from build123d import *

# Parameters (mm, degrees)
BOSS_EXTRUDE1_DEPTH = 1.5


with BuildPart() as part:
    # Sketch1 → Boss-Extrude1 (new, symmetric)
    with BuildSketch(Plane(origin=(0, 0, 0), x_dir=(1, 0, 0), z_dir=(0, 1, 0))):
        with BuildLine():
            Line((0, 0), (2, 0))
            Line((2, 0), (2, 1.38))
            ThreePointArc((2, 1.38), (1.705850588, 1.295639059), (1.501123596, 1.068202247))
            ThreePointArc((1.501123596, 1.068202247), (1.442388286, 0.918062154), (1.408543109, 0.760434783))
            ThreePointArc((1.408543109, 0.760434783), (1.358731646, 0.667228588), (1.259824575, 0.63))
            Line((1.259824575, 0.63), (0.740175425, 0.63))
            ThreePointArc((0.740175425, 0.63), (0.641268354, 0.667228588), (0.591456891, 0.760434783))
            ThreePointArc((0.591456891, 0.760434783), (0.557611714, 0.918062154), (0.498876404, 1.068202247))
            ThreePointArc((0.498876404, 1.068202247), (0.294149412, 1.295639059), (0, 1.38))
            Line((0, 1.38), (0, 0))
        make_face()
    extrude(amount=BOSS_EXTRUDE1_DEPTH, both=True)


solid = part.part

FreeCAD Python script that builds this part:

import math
import FreeCAD as App
import Part
import Sketcher
from FreeCAD import Vector
Q = App.Units.Quantity

doc = App.newDocument("Part")
params = doc.addObject("Spreadsheet::Sheet", "Params")
for row, (alias, value) in enumerate([
    ("sketch1_radius", "1 mm"),
    ("sketch1_width", "2 mm"),
    ("sketch1_radius2", "0.15 mm"),
    ("sketch1_height", "1.38 mm"),
    ("pad1_length", "3 mm"),
], start=1):
    params.set(f"A{row}", alias)
    params.set(f"B{row}", "=" + value)
    params.setAlias(f"B{row}", alias)

body = doc.addObject("PartDesign::Body", "Body")

# Sketch on XZ plane
sketch1 = doc.addObject("Sketcher::SketchObject", "Sketch")
body.addObject(sketch1)
sketch1.AttachmentSupport = (doc.XZ_Plane, [""])
sketch1.MapMode = "FlatFace"
sketch1.addGeometry(Part.LineSegment(Vector(0, 0, 0), Vector(2, 0, 0)), False)
sketch1.addGeometry(Part.LineSegment(Vector(2, 0, 0), Vector(2, -1.38, 0)), False)
sketch1.addGeometry(Part.ArcOfCircle(Part.Circle(Vector(2, -0.83, 0), Vector(0, 0, 1), 0.55), math.radians(-154), math.radians(-90)), False)
sketch1.addGeometry(Part.ArcOfCircle(Part.Circle(Vector(2.4, -0.63, 0), Vector(0, 0, 1), 1), math.radians(-172.51), math.radians(-154.01)), False)
sketch1.addGeometry(Part.ArcOfCircle(Part.Circle(Vector(1.26, -0.78, 0), Vector(0, 0, 1), 0.15), math.radians(7), math.radians(90)), False)
sketch1.addGeometry(Part.LineSegment(Vector(1.26, -0.63, 0), Vector(0.74, -0.63, 0)), False)
sketch1.addGeometry(Part.ArcOfCircle(Part.Circle(Vector(0.74, -0.78, 0), Vector(0, 0, 1), 0.15), math.radians(90), math.radians(173)), False)
sketch1.addGeometry(Part.ArcOfCircle(Part.Circle(Vector(-0.4, -0.63, 0), Vector(0, 0, 1), 1), math.radians(-25.99), math.radians(-7.49)), False)
sketch1.addGeometry(Part.ArcOfCircle(Part.Circle(Vector(0, -0.83, 0), Vector(0, 0, 1), 0.55), math.radians(-90), math.radians(-26)), False)
sketch1.addGeometry(Part.LineSegment(Vector(0, -1.38, 0), Vector(0, 0, 0)), False)
sketch1.addConstraint(Sketcher.Constraint("Coincident", 0, 2, 1, 1))
sketch1.addConstraint(Sketcher.Constraint("Coincident", 1, 2, 2, 2))
sketch1.addConstraint(Sketcher.Constraint("Tangent", 2, 1, 3, 2))
sketch1.addConstraint(Sketcher.Constraint("Tangent", 3, 1, 4, 1))
sketch1.addConstraint(Sketcher.Constraint("Tangent", 4, 2, 5, 1))
sketch1.addConstraint(Sketcher.Constraint("Tangent", 5, 2, 6, 1))
sketch1.addConstraint(Sketcher.Constraint("Tangent", 6, 2, 7, 2))
sketch1.addConstraint(Sketcher.Constraint("Tangent", 7, 1, 8, 2))
sketch1.addConstraint(Sketcher.Constraint("Coincident", 8, 1, 9, 1))
sketch1.addConstraint(Sketcher.Constraint("Coincident", 9, 2, 0, 1))
sketch1.addConstraint(Sketcher.Constraint("Horizontal", 0))
sketch1.addConstraint(Sketcher.Constraint("Vertical", 1))
sketch1.addConstraint(Sketcher.Constraint("Horizontal", 5))
sketch1.addConstraint(Sketcher.Constraint("Vertical", 9))
sketch1.addConstraint(Sketcher.Constraint("Coincident", 9, 2, -1, 1))
sketch1.addConstraint(Sketcher.Constraint("Equal", 4, 6))
sketch1.addConstraint(Sketcher.Constraint("Equal", 3, 7))
sketch1.addConstraint(Sketcher.Constraint("Equal", 2, 8))
sketch1.addConstraint(Sketcher.Constraint("PointOnObject", 8, 3, -2))
sketch1.addConstraint(Sketcher.Constraint("Horizontal", 3, 3, 7, 3))
sketch1.addConstraint(Sketcher.Constraint("Horizontal", 2, 3, 8, 3))
sketch1.addConstraint(Sketcher.Constraint("Horizontal", 7, 3, 4, 2))
sketch1.addConstraint(Sketcher.Constraint("Vertical", 2, 3, 0, 2))
sketch1.addConstraint(Sketcher.Constraint("Radius", 3, Q("1 mm")))
sketch1.addConstraint(Sketcher.Constraint("DistanceX", 0, 1, 0, 2, Q("2 mm")))
sketch1.addConstraint(Sketcher.Constraint("Radius", 4, Q("0.15 mm")))
sketch1.addConstraint(Sketcher.Constraint("Radius", 2, Q("0.555 mm")))
sketch1.addConstraint(Sketcher.Constraint("DistanceY", 1, 2, 1, 1, Q("1.38 mm")))
sketch1.addConstraint(Sketcher.Constraint("DistanceX", -1, 1, 3, 3, Q("2.4 mm")))
sketch1.setExpression("Constraints[23]", "Params.sketch1_radius")
sketch1.setExpression("Constraints[24]", "Params.sketch1_width")
sketch1.setExpression("Constraints[25]", "Params.sketch1_radius2")
sketch1.setExpression("Constraints[27]", "Params.sketch1_height")
pad1 = doc.addObject("PartDesign::Pad", "Pad")
body.addObject(pad1)
pad1.Profile = sketch1
pad1.setExpression("Length", "Params.pad1_length")
pad1.Midplane = True

doc.recompute()
